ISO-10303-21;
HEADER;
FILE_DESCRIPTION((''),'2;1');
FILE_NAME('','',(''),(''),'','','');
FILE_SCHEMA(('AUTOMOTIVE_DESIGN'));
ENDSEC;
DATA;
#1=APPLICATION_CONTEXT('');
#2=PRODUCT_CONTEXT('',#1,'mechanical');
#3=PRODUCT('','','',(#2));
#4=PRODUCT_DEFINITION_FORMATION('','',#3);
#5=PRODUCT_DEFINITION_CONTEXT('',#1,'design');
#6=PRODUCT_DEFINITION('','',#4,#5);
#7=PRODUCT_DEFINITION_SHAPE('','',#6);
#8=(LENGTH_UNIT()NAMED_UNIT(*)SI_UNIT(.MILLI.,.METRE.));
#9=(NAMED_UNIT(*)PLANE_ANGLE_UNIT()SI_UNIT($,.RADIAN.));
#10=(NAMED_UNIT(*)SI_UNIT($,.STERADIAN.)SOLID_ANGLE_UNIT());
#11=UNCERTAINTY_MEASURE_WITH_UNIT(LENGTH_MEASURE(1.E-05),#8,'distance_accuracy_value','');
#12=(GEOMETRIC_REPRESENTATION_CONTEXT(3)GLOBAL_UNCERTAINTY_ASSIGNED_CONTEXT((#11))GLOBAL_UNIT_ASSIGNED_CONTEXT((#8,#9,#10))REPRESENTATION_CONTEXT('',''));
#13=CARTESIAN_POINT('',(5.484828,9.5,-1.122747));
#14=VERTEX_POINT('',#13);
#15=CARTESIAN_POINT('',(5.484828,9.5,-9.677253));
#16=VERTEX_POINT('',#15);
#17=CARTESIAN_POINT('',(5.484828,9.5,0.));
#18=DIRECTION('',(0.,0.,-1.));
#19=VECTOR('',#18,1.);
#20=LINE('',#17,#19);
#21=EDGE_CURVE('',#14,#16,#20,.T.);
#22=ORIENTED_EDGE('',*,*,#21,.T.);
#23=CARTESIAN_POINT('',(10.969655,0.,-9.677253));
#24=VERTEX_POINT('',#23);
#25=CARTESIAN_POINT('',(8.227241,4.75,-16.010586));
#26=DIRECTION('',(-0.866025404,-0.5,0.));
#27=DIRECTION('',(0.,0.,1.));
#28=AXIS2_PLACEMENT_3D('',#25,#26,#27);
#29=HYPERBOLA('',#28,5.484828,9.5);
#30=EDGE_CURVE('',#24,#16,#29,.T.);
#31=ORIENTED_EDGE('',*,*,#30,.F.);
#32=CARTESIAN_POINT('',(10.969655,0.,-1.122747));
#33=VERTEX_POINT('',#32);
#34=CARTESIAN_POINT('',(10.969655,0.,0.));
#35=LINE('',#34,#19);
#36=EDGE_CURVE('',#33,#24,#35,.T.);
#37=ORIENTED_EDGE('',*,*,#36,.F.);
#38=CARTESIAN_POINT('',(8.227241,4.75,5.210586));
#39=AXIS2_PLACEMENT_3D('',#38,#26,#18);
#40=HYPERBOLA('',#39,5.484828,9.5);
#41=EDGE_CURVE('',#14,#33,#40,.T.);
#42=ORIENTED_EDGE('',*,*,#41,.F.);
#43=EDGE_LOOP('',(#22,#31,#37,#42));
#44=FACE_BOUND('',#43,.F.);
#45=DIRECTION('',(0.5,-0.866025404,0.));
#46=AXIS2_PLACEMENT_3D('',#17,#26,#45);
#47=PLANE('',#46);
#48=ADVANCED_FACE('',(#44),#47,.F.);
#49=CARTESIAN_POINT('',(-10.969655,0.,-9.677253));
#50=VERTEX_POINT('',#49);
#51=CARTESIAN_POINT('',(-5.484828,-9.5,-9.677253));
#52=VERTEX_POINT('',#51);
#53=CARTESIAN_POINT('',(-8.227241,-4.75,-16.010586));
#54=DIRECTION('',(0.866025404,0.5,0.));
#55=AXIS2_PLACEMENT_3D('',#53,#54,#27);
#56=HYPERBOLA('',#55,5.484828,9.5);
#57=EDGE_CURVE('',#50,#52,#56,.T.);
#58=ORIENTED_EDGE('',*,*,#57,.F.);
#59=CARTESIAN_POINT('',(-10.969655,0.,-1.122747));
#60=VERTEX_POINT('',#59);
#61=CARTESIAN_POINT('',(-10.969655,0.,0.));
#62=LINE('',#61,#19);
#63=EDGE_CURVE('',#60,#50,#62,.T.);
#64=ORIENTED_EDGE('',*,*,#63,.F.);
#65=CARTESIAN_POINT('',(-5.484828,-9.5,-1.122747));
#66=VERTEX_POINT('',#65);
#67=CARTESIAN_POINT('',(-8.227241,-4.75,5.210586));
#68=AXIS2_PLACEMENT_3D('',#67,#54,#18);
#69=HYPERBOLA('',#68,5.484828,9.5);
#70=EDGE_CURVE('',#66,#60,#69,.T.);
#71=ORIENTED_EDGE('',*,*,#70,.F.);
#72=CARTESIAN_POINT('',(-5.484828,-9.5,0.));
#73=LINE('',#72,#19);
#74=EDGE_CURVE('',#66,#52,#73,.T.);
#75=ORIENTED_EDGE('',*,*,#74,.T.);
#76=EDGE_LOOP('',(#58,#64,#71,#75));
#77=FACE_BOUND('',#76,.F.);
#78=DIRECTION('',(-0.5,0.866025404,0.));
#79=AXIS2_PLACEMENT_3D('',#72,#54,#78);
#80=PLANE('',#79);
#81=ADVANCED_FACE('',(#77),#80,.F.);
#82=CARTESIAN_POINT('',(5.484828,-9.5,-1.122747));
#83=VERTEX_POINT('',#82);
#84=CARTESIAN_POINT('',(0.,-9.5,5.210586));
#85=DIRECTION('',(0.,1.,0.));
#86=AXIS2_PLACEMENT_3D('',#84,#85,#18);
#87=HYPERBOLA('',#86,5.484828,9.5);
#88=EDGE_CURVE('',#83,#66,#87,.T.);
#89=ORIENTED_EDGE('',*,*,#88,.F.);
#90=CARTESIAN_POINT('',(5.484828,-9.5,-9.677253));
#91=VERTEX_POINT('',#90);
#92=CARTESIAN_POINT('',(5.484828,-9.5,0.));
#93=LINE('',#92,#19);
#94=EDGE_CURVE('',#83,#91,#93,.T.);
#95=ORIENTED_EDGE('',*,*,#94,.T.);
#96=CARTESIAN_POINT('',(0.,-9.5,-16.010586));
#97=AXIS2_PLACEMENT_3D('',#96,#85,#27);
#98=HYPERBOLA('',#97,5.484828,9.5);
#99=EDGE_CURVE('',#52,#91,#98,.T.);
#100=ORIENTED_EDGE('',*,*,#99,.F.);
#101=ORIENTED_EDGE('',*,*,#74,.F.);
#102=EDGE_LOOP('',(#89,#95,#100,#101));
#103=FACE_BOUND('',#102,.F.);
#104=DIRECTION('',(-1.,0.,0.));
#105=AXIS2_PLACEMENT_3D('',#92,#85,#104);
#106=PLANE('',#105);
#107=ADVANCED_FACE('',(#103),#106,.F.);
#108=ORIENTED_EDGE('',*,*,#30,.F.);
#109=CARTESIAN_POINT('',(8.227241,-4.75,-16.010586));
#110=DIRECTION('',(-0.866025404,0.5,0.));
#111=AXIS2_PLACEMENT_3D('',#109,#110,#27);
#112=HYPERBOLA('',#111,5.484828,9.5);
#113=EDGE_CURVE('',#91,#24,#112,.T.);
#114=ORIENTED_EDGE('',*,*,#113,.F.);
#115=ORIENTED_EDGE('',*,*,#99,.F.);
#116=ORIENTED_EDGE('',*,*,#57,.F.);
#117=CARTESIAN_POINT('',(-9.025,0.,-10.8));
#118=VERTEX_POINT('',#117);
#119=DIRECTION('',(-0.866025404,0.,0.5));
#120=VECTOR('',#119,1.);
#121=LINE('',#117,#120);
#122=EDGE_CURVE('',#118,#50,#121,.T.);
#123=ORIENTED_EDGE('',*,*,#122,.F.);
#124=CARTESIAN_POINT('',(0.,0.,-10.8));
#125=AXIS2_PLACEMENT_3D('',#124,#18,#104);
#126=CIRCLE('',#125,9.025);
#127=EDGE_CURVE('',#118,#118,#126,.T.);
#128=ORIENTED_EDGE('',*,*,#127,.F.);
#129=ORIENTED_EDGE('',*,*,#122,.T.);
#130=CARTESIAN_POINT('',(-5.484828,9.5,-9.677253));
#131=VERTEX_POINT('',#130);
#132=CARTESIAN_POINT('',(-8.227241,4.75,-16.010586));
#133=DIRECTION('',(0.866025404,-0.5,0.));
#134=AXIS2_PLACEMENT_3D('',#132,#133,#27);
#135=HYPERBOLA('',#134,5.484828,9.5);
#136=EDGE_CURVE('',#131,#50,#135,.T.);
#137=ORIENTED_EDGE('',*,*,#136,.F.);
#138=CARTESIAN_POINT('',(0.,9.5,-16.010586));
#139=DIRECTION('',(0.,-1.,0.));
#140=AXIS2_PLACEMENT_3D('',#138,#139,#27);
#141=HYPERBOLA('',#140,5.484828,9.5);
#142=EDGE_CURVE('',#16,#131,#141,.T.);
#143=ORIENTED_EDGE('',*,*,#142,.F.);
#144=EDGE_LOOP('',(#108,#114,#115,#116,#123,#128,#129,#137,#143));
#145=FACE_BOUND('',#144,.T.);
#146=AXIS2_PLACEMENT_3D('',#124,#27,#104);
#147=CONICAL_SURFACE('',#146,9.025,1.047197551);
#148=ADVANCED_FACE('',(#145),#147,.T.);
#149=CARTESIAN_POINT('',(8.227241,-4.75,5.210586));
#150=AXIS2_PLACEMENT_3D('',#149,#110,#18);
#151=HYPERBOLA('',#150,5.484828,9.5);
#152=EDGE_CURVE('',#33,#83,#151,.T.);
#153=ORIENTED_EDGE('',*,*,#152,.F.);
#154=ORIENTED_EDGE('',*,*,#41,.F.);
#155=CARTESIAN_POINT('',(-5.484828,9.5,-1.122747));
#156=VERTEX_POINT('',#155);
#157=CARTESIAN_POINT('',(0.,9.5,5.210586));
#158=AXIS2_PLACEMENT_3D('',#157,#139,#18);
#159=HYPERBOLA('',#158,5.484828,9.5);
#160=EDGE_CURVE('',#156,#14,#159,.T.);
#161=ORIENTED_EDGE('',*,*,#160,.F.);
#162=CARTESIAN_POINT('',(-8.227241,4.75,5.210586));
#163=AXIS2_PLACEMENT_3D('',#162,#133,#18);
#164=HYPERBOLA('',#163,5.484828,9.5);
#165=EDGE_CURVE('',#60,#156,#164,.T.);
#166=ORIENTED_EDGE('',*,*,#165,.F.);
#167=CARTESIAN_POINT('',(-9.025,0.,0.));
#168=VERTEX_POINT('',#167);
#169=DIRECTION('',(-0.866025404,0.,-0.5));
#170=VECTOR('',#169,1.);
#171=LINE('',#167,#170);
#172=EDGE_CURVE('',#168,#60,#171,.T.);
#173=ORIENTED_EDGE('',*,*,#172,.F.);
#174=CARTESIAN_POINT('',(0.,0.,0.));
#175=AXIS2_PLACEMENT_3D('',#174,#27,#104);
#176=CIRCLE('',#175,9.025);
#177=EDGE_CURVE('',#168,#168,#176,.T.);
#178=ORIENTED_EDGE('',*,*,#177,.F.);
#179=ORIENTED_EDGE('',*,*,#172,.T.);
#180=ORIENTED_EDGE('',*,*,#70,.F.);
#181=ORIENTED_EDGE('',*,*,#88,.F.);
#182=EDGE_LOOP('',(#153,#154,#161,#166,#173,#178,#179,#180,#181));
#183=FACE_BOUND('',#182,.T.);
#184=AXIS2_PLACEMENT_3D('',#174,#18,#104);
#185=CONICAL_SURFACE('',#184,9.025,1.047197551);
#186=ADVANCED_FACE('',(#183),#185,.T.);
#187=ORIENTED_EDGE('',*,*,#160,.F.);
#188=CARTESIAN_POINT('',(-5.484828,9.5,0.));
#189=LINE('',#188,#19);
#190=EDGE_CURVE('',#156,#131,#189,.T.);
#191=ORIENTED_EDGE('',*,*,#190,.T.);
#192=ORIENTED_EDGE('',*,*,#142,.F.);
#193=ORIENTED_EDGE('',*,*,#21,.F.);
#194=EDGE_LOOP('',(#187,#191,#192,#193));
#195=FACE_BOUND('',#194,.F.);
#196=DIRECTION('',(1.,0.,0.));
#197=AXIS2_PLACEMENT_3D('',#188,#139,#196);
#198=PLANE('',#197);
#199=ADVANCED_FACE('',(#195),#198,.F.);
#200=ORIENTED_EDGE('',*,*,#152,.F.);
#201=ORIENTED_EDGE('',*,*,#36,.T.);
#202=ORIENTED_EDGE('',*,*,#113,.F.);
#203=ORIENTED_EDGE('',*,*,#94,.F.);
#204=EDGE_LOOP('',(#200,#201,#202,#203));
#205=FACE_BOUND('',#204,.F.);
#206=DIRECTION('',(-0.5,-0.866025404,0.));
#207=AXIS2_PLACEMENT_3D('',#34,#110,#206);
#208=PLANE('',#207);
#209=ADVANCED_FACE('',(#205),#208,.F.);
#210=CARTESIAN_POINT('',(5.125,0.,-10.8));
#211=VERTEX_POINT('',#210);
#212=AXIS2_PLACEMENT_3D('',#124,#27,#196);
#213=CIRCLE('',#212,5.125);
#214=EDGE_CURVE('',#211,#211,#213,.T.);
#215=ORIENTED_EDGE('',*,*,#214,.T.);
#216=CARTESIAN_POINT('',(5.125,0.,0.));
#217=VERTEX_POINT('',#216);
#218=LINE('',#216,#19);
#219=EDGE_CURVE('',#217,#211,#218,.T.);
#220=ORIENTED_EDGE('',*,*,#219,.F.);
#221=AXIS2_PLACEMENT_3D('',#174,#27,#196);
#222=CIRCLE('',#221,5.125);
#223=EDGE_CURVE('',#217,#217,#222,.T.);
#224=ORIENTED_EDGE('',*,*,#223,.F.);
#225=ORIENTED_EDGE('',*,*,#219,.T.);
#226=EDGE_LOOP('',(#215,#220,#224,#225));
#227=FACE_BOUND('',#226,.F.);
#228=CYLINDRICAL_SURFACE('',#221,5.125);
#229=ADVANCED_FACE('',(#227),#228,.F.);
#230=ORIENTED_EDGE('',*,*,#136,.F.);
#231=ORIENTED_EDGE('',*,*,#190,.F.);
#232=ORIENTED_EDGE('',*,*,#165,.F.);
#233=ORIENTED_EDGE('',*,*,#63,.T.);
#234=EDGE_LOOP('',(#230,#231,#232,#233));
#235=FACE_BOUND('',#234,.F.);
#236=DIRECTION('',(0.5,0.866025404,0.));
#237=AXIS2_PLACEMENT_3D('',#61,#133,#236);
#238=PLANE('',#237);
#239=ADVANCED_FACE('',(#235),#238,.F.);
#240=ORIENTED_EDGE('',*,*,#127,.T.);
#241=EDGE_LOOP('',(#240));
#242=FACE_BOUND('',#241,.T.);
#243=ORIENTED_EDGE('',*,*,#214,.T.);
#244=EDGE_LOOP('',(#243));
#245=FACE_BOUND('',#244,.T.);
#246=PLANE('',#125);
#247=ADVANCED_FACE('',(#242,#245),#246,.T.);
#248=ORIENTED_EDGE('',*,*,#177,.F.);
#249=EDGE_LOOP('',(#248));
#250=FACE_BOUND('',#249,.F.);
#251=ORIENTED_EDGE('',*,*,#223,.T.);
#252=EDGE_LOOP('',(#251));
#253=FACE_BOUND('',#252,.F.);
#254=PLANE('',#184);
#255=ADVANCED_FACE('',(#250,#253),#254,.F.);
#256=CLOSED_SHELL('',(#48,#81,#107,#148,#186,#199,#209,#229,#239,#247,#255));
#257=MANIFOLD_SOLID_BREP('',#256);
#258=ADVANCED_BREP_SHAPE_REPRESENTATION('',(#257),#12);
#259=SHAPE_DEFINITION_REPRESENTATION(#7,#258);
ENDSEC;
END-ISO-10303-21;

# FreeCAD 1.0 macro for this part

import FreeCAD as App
import Part
import Sketcher

V = App.Vector
Q = App.Units.Quantity


def faces_at(feature, points):
    """Names of the faces that lie closest to the given points."""
    faces = feature.Shape.Faces
    near = lambda p: min(range(len(faces)), key=lambda i: faces[i].distToShape(Part.Vertex(*p))[0])
    return sorted({f"Face{near(p) + 1}" for p in points})


def add_polygon(sketch, points):
    """Adds a closed chain of lines whose ends are joined by coincident constraints."""
    first, n = sketch.GeometryCount, len(points)
    for a, b in zip(points, points[1:] + points[:1]):
        sketch.addGeometry(Part.LineSegment(App.Vector(*a, 0), App.Vector(*b, 0)), False)
    for i in range(n):
        sketch.addConstraint(Sketcher.Constraint("Coincident", first + i, 2, first + (i + 1) % n, 1))

doc = App.newDocument("Part")
body = doc.addObject("PartDesign::Body", "Body")

# Sketch on XY plane
sketch1 = body.newObject("Sketcher::SketchObject", "Sketch")
sketch1.AttachmentSupport = (doc.getObject("XY_Plane"), [""])
sketch1.MapMode = "FlatFace"
add_polygon(sketch1, [(-5, -10), (5, -10), (11, 0), (5, 10), (-5, 10), (-11, 0)])  # lines 0-5
sketch1.addGeometry(Part.Circle(V(0, 0, 0), V(0, 0, 1), 5), False)  # 6
sketch1.addConstraint(Sketcher.Constraint("Horizontal", 0))
sketch1.addConstraint(Sketcher.Constraint("Horizontal", 3))
sketch1.addConstraint(Sketcher.Constraint("Coincident", 6, 3, -1, 1))
sketch1.addConstraint(Sketcher.Constraint("Symmetric", 0, 2, 3, 2, -1, 1))
sketch1.addConstraint(Sketcher.Constraint("Symmetric", 1, 2, 4, 2, -1, 1))
sketch1.addConstraint(Sketcher.Constraint("PointOnObject", 1, 2, -1))
sketch1.addConstraint(Sketcher.Constraint("Parallel", 2, 5))
sketch1.addConstraint(Sketcher.Constraint("Vertical", 0, 2, 2, 2))
sketch1.addConstraint(Sketcher.Constraint("Diameter", 6, 10.25))
sketch1.addConstraint(Sketcher.Constraint("Angle", 1, Q("60 deg")))
sketch1.addConstraint(Sketcher.Constraint("DistanceY", 0, 2, 2, 2, 19.0))
sketch1.addConstraint(Sketcher.Constraint("DistanceX", 0, 1, 0, 2, 10.969655))
pad1 = body.newObject("PartDesign::Pad", "Pad")
pad1.Profile = sketch1
pad1.Length = 10.8
pad1.Reversed = True
body2 = doc.addObject("PartDesign::Body", "Body001")

# Sketch on XY plane
sketch2 = body2.newObject("Sketcher::SketchObject", "Sketch001")
sketch2.AttachmentSupport = (doc.getObject("XY_Plane001"), [""])
sketch2.MapMode = "FlatFace"
sketch2.AttachmentOffset = App.Placement(V(0, 0, -10.8), App.Rotation())
add_polygon(sketch2, [(48, 47), (48, -47), (-48, -47), (-48, 47)])  # lines 0-3
sketch2.addGeometry(Part.Circle(V(0, 0, 0), V(0, 0, 1), 9), False)  # 4
sketch2.addConstraint(Sketcher.Constraint("Vertical", 0))
sketch2.addConstraint(Sketcher.Constraint("Horizontal", 1))
sketch2.addConstraint(Sketcher.Constraint("Vertical", 2))
sketch2.addConstraint(Sketcher.Constraint("Horizontal", 3))
sketch2.addConstraint(Sketcher.Constraint("Coincident", 4, 3, -1, 1))
sketch2.addConstraint(Sketcher.Constraint("Symmetric", 0, 2, 2, 2, -1, 1))
sketch2.addConstraint(Sketcher.Constraint("Diameter", 4, 18.05))
sketch2.addConstraint(Sketcher.Constraint("DistanceX", 1, 2, 1, 1, 96.26))
sketch2.addConstraint(Sketcher.Constraint("DistanceY", 0, 2, 0, 1, 93.32))
pad2 = body2.newObject("PartDesign::Pad", "Pad001")
pad2.Profile = sketch2
pad2.Length = 19.089315
doc.recompute()

datumplane = body2.newObject("PartDesign::Plane", "DatumPlane")
datumplane.AttachmentSupport = (doc.getObject("XY_Plane001"), [""])
datumplane.MapMode = "FlatFace"
datumplane.AttachmentOffset = App.Placement(V(0, 0, -10.8), App.Rotation())
draft = body2.newObject("PartDesign::Draft", "Draft")
draft.Base = (pad2, faces_at(pad2, [
    (0, -46.66, -1.255),
    (-48.13, 0, -1.255),
    (0, 46.66, -1.255),
    (48.13, 0, -1.255),
    (9.025, 0, -1.255),
]))
draft.NeutralPlane = (datumplane, [""])
draft.Angle = 60
draft.Reversed = False
doc.recompute()

boolean = body.newObject("PartDesign::Boolean", "Boolean")
boolean.Type = "Cut"
boolean.addObjects([body2])
body3 = doc.addObject("PartDesign::Body", "Body002")

# Sketch on XY plane
sketch3 = body3.newObject("Sketcher::SketchObject", "Sketch002")
sketch3.AttachmentSupport = (doc.getObject("XY_Plane002"), [""])
sketch3.MapMode = "FlatFace"
add_polygon(sketch3, [(48, -47), (48, 47), (-48, 47), (-48, -47)])  # lines 0-3
sketch3.addGeometry(Part.Circle(V(0, 0, 0), V(0, 0, 1), 9), False)  # 4
sketch3.addConstraint(Sketcher.Constraint("Vertical", 0))
sketch3.addConstraint(Sketcher.Constraint("Horizontal", 1))
sketch3.addConstraint(Sketcher.Constraint("Vertical", 2))
sketch3.addConstraint(Sketcher.Constraint("Horizontal", 3))
sketch3.addConstraint(Sketcher.Constraint("Coincident", 4, 3, -1, 1))
sketch3.addConstraint(Sketcher.Constraint("Symmetric", 0, 2, 2, 2, -1, 1))
sketch3.addConstraint(Sketcher.Constraint("Diameter", 4, 18.05))
sketch3.addConstraint(Sketcher.Constraint("DistanceX", 1, 2, 1, 1, 96.26))
sketch3.addConstraint(Sketcher.Constraint("DistanceY", 0, 1, 0, 2, 93.32))
pad3 = body3.newObject("PartDesign::Pad", "Pad002")
pad3.Profile = sketch3
pad3.Length = 19.089315
pad3.Reversed = True
doc.recompute()

draft2 = body3.newObject("PartDesign::Draft", "Draft001")
draft2.Base = (pad3, faces_at(pad3, [
    (0, -46.66, -9.545),
    (-48.13, 0, -9.545),
    (0, 46.66, -9.545),
    (48.13, 0, -9.545),
    (9.025, 0, -9.545),
]))
draft2.NeutralPlane = (doc.getObject("XY_Plane002"), [""])
draft2.Angle = 60
draft2.Reversed = True
doc.recompute()

boolean2 = body.newObject("PartDesign::Boolean", "Boolean001")
boolean2.Type = "Cut"
boolean2.addObjects([body3])

doc.recompute()
